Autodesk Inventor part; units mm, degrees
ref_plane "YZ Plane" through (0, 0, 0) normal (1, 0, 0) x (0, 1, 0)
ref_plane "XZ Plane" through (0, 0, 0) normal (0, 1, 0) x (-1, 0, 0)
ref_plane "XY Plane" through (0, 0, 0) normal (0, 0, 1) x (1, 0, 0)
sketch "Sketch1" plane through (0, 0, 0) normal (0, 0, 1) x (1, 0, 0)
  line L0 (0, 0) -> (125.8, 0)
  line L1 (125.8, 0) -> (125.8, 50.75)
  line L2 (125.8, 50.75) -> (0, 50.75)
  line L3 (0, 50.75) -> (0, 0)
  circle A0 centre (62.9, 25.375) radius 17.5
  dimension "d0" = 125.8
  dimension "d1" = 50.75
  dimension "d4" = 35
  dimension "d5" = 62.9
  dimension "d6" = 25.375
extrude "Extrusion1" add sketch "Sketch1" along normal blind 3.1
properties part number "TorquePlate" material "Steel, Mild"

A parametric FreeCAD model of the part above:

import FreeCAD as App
import Part
import Sketcher
from FreeCAD import Vector


def add_polygon(sketch, points):
    """Adds a closed chain of lines whose ends are joined by coincident constraints."""
    first, n = sketch.GeometryCount, len(points)
    for a, b in zip(points, points[1:] + points[:1]):
        sketch.addGeometry(Part.LineSegment(App.Vector(*a, 0), App.Vector(*b, 0)), False)
    for i in range(n):
        sketch.addConstraint(Sketcher.Constraint("Coincident", first + i, 2, first + (i + 1) % n, 1))

doc = App.newDocument("Part")
body = doc.addObject("PartDesign::Body", "Body")

sketch1 = doc.addObject("Sketcher::SketchObject", "Sketch")
body.addObject(sketch1)
sketch1.AttachmentSupport = (doc.XY_Plane, [""])
sketch1.MapMode = "FlatFace"
add_polygon(sketch1, [(0, 50.75), (0, 0), (125.8, 0), (125.8, 50.75)])
sketch1.addGeometry(Part.Circle(Vector(62.9, 25.375, 0), Vector(0, 0, 1), 17.5), False)
sketch1.addConstraint([
    Sketcher.Constraint("Vertical", 0),
    Sketcher.Constraint("Horizontal", 1),
    Sketcher.Constraint("Vertical", 2),
    Sketcher.Constraint("Horizontal", 3),
    Sketcher.Constraint("Coincident", 0, 2, -1, 1),
    Sketcher.Constraint("Diameter", 4, 35.0),
    Sketcher.Constraint("DistanceX", 1, 1, 1, 2, 125.8),
    Sketcher.Constraint("DistanceY", 0, 2, 0, 1, 50.75),
    Sketcher.Constraint("DistanceX", -1, 1, 4, 3, 62.9),
    Sketcher.Constraint("DistanceY", -1, 1, 4, 3, 25.375),
])
pad1 = doc.addObject("PartDesign::Pad", "Pad")
body.addObject(pad1)
pad1.Profile = sketch1
pad1.Length = 3.1

doc.recompute()
